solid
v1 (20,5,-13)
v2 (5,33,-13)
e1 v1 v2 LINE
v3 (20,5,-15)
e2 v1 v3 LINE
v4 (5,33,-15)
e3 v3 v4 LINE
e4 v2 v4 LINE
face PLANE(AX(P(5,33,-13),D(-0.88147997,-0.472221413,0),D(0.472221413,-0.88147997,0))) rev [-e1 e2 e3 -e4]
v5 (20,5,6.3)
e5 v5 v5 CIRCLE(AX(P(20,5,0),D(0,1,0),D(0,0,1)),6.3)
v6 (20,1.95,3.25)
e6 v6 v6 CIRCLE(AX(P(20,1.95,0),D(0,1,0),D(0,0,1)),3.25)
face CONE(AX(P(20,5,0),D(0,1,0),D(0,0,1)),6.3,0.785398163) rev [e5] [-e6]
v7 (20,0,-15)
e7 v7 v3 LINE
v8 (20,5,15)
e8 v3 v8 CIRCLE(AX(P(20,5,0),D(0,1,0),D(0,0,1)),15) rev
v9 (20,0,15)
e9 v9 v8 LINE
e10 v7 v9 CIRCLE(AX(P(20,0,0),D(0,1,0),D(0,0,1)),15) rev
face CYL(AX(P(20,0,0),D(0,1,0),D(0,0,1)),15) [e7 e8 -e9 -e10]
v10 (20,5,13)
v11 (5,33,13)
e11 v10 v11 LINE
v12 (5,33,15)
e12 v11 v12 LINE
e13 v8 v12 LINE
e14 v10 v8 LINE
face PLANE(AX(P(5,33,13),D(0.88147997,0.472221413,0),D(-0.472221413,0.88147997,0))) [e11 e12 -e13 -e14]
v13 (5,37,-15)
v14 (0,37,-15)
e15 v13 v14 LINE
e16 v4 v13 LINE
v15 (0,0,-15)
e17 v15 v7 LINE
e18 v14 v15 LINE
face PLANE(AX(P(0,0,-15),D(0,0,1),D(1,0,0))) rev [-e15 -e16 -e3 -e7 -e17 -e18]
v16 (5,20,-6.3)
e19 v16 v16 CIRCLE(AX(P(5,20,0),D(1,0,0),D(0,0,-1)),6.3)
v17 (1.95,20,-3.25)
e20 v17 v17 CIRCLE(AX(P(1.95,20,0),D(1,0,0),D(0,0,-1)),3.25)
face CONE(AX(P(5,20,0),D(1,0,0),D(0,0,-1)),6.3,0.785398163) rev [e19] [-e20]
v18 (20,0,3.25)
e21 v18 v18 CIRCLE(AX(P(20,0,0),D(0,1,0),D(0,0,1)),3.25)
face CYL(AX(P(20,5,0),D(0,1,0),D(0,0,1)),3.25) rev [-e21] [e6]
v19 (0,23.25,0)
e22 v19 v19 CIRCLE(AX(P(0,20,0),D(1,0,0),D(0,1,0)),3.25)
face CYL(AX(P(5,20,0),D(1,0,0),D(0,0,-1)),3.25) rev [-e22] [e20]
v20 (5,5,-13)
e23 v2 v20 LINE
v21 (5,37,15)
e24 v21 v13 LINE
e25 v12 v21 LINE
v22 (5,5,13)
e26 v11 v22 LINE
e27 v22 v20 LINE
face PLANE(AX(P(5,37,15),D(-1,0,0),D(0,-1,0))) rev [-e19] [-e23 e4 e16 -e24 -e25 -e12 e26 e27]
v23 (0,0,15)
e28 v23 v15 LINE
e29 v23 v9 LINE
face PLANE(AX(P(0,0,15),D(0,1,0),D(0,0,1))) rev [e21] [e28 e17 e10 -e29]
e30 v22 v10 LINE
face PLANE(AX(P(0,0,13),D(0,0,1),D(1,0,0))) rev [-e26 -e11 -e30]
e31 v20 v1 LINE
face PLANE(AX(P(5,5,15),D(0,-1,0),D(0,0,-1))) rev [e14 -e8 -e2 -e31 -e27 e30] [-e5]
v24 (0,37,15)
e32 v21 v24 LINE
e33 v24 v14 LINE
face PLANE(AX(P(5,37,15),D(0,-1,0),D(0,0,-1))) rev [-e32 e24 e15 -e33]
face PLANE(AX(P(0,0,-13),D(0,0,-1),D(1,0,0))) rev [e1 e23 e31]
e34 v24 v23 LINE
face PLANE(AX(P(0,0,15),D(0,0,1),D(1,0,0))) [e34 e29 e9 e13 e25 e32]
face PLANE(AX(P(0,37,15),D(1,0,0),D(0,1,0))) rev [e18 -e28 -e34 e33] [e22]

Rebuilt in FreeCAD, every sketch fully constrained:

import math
import FreeCAD as App
import Part
import Sketcher

V = App.Vector
Q = App.Units.Quantity


def add_polygon(sketch, points):
    """Adds a closed chain of lines whose ends are joined by coincident constraints."""
    first, n = sketch.GeometryCount, len(points)
    for a, b in zip(points, points[1:] + points[:1]):
        sketch.addGeometry(Part.LineSegment(App.Vector(*a, 0), App.Vector(*b, 0)), False)
    for i in range(n):
        sketch.addConstraint(Sketcher.Constraint("Coincident", first + i, 2, first + (i + 1) % n, 1))

doc = App.newDocument("Part")
params = doc.addObject("Spreadsheet::Sheet", "Params")
for row, (alias, value) in enumerate([
    ("sketch1_width", "35 mm"),
    ("sketch1_width2", "30 mm"),
    ("sketch1_height", "37 mm"),
    ("pad1_length", "30 mm"),
    ("sketch2_radius", "15 mm"),
    ("sketch3_width", "15 mm"),
    ("sketch3_height", "28 mm"),
    ("pad2_length", "2 mm"),
    ("sketch4_width", "6.2 mm"),
    ("sketch4_height", "6.3 mm"),
    ("groove_angle", "360 deg"),
], start=1):
    params.set(f"A{row}", alias)
    params.set(f"B{row}", "=" + value)
    params.setAlias(f"B{row}", alias)

body = doc.addObject("PartDesign::Body", "Body")

# Sketch on XY plane
sketch1 = body.newObject("Sketcher::SketchObject", "Sketch")
sketch1.AttachmentSupport = (doc.getObject("XY_Plane"), [""])
sketch1.MapMode = "FlatFace"
add_polygon(sketch1, [(0, 37), (0, 0), (35, 0), (35, 5), (5, 5), (5, 37)])  # lines 0-5
sketch1.addConstraint([
    Sketcher.Constraint("Vertical", 0),
    Sketcher.Constraint("Horizontal", 1),
    Sketcher.Constraint("Vertical", 2),
    Sketcher.Constraint("Horizontal", 3),
    Sketcher.Constraint("Vertical", 4),
    Sketcher.Constraint("Horizontal", 5),
    Sketcher.Constraint("Coincident", 0, 2, -1, 1),
    Sketcher.Constraint("Equal", 5, 2),
    Sketcher.Constraint("DistanceX", 1, 1, 1, 2, 35.0),
    Sketcher.Constraint("DistanceX", 3, 2, 3, 1, 30.0),
    Sketcher.Constraint("DistanceY", 0, 2, 0, 1, 37.0),
])
sketch1.setExpression("Constraints[14]", "Params.sketch1_width")
sketch1.setExpression("Constraints[15]", "Params.sketch1_width2")
sketch1.setExpression("Constraints[16]", "Params.sketch1_height")
pad1 = body.newObject("PartDesign::Pad", "Pad")
pad1.Profile = sketch1
pad1.setExpression("Length", "Params.pad1_length")
pad1.Midplane = True

# Sketch on XZ plane
sketch2 = body.newObject("Sketcher::SketchObject", "Sketch001")
sketch2.AttachmentSupport = (doc.getObject("XZ_Plane"), [""])
sketch2.MapMode = "FlatFace"
sketch2.AttachmentOffset = App.Placement(V(0, 0, -5), App.Rotation())
sketch2.addGeometry([
    Part.LineSegment(V(35, -15, 0), V(20, -15, 0)),  # 0
    Part.ArcOfCircle(Part.Circle(V(20, 0, 0), V(0, 0, 1), 15), math.radians(-90), math.radians(0)),  # 1
    Part.LineSegment(V(35, 0, 0), V(35, -15, 0)),  # 2
    Part.LineSegment(V(35, 15, 0), V(35, 0, 0)),  # 3
    Part.ArcOfCircle(Part.Circle(V(20, 0, 0), V(0, 0, 1), 15), math.radians(0), math.radians(90)),  # 4
    Part.LineSegment(V(20, 15, 0), V(35, 15, 0)),  # 5
], False)
sketch2.addConstraint([
    Sketcher.Constraint("Tangent", 0, 2, 1, 1),
    Sketcher.Constraint("Tangent", 1, 2, 2, 1),
    Sketcher.Constraint("Coincident", 2, 2, 0, 1),
    Sketcher.Constraint("Tangent", 3, 2, 4, 1),
    Sketcher.Constraint("Tangent", 4, 2, 5, 1),
    Sketcher.Constraint("Coincident", 5, 2, 3, 1),
    Sketcher.Constraint("Horizontal", 0),
    Sketcher.Constraint("Vertical", 2),
    Sketcher.Constraint("Vertical", 3),
    Sketcher.Constraint("Horizontal", 5),
    Sketcher.Constraint("Coincident", 4, 3, 1, 3),
    Sketcher.Constraint("Equal", 1, 4),
    Sketcher.Constraint("PointOnObject", 1, 3, -1),
    Sketcher.Constraint("Radius", 1, 15.0),
    Sketcher.Constraint("DistanceX", -1, 1, 1, 3, 20.0),
])
sketch2.setExpression("Constraints[13]", "Params.sketch2_radius")
pocket1 = body.newObject("PartDesign::Pocket", "Pocket")
pocket1.Profile = sketch2
pocket1.Type = "ThroughAll"
pocket1.Reversed = True

# Sketch on XY plane
sketch3 = body.newObject("Sketcher::SketchObject", "Sketch002")
sketch3.AttachmentSupport = (doc.getObject("XY_Plane"), [""])
sketch3.MapMode = "FlatFace"
sketch3.AttachmentOffset = App.Placement(V(0, 0, 15), App.Rotation())
add_polygon(sketch3, [(20, 5), (5, 33), (5, 5)])  # lines 0-2
sketch3.addConstraint([
    Sketcher.Constraint("Vertical", 1),
    Sketcher.Constraint("Horizontal", 2),
    Sketcher.Constraint("DistanceX", 2, 1, 2, 2, 15.0),
    Sketcher.Constraint("DistanceY", 1, 2, 1, 1, 28.0),
    Sketcher.Constraint("DistanceX", -1, 1, 0, 2, 5.0),
    Sketcher.Constraint("DistanceY", -1, 1, 0, 2, 33.0),
])
sketch3.setExpression("Constraints[5]", "Params.sketch3_width")
sketch3.setExpression("Constraints[6]", "Params.sketch3_height")
pad2 = body.newObject("PartDesign::Pad", "Pad001")
pad2.Profile = sketch3
pad2.setExpression("Length", "Params.pad2_length")
pad2.Reversed = True
doc.recompute()

mirrored = body.newObject("PartDesign::Mirrored", "Mirrored")
mirrored.Originals = [pad2]
mirrored.MirrorPlane = (doc.getObject("XY_Plane"), [""])
body.Tip = mirrored

# Sketch on YZ plane
sketch4 = body.newObject("Sketcher::SketchObject", "Sketch003")
sketch4.AttachmentSupport = (doc.getObject("YZ_Plane"), [""])
sketch4.MapMode = "FlatFace"
sketch4.AttachmentOffset = App.Placement(V(0, 0, 20), App.Rotation())
add_polygon(sketch4, [(-6.2, 0), (5, 0), (5, 6.3), (1.9, 3.2), (-4.2, 3.2)])  # lines 0-4
sketch4.addConstraint([
    Sketcher.Constraint("Horizontal", 0),
    Sketcher.Constraint("Vertical", 1),
    Sketcher.Constraint("Horizontal", 3),
    Sketcher.Constraint("PointOnObject", 0, 2, -1),
    Sketcher.Constraint("Angle", 2, Q("-135 deg")),
    Sketcher.Constraint("Angle", 4, Q("-121 deg")),
    Sketcher.Constraint("DistanceX", 3, 2, 3, 1, 6.2),
    Sketcher.Constraint("DistanceY", 1, 1, 1, 2, 6.3),
    Sketcher.Constraint("DistanceX", -1, 1, 0, 2, 5.0),
    Sketcher.Constraint("DistanceX", -1, 1, 2, 2, 1.95),
])
sketch4.setExpression("Constraints[11]", "Params.sketch4_width")
sketch4.setExpression("Constraints[12]", "Params.sketch4_height")
groove = body.newObject("PartDesign::Groove", "Groove")
groove.Profile = sketch4
groove.ReferenceAxis = (sketch4, ["H_Axis"])
groove.setExpression("Angle", "Params.groove_angle")
doc.recompute()

datumplane = body.newObject("PartDesign::Plane", "DatumPlane")
datumplane.Placement = App.Placement(V(0, 0, 0), App.Rotation(V(0.707106781, 0.707106781, 0), V(0, 0, -1), V(-0.707106781, 0.707106781, 0), "ZXY"))
mirrored2 = body.newObject("PartDesign::Mirrored", "Mirrored001")
mirrored2.Originals = [groove]
mirrored2.MirrorPlane = (datumplane, [""])
body.Tip = mirrored2

doc.recompute()
